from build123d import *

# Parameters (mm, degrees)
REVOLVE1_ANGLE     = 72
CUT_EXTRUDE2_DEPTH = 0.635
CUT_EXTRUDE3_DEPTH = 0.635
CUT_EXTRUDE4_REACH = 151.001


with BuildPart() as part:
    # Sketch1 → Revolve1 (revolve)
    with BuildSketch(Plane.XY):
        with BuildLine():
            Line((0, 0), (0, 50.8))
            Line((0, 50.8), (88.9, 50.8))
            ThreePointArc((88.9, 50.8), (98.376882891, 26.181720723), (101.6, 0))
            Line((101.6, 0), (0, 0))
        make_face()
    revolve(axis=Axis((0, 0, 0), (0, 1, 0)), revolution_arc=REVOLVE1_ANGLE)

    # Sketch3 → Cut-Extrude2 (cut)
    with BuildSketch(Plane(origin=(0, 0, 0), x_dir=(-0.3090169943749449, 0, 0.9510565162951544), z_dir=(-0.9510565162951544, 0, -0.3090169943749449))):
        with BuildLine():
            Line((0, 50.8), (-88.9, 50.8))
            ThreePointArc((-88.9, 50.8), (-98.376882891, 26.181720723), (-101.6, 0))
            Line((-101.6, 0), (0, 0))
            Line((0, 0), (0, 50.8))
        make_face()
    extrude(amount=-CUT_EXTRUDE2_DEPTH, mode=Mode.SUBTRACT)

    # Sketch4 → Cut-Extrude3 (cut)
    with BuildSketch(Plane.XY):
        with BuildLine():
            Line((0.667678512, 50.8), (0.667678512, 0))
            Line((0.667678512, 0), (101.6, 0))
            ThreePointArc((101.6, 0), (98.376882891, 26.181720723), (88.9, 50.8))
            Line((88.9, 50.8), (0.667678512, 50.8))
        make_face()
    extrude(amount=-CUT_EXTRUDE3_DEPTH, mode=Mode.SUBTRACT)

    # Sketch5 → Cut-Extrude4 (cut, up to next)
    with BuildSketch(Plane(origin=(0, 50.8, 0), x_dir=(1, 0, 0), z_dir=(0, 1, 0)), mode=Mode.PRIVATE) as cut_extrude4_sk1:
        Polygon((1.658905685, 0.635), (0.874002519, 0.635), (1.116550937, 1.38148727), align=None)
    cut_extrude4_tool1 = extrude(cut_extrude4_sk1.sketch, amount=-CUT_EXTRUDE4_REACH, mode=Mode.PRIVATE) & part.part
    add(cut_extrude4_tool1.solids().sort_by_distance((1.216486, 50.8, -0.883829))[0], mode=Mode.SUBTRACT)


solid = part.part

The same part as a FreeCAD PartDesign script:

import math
import FreeCAD as App
import Part
import Sketcher
Q = App.Units.Quantity


def add_polygon(sketch, points):
    """Adds a closed chain of lines whose ends are joined by coincident constraints."""
    first, n = sketch.GeometryCount, len(points)
    for a, b in zip(points, points[1:] + points[:1]):
        sketch.addGeometry(Part.LineSegment(App.Vector(*a, 0), App.Vector(*b, 0)), False)
    for i in range(n):
        sketch.addConstraint(Sketcher.Constraint("Coincident", first + i, 2, first + (i + 1) % n, 1))

doc = App.newDocument("Part")
body = doc.addObject("PartDesign::Body", "Body")

# Sketch on XY plane
sketch1 = body.newObject("Sketcher::SketchObject", "Sketch")
sketch1.AttachmentSupport = (doc.getObject("XY_Plane"), [""])
sketch1.MapMode = "FlatFace"
sketch1.addGeometry(Part.LineSegment(App.Vector(0, 51, 0), App.Vector(0, 0, 0)), False)
sketch1.addGeometry(Part.LineSegment(App.Vector(0, 0, 0), App.Vector(102, 0, 0)), False)
sketch1.addGeometry(Part.ArcOfCircle(Part.Circle(App.Vector(-6, 0, 0), App.Vector(0, 0, 1), 108), math.radians(0), math.radians(28)), False)
sketch1.addGeometry(Part.LineSegment(App.Vector(89, 51, 0), App.Vector(0, 51, 0)), False)
sketch1.addConstraint(Sketcher.Constraint("Coincident", 0, 2, 1, 1))
sketch1.addConstraint(Sketcher.Constraint("Coincident", 1, 2, 2, 1))
sketch1.addConstraint(Sketcher.Constraint("Coincident", 2, 2, 3, 1))
sketch1.addConstraint(Sketcher.Constraint("Coincident", 3, 2, 0, 1))
sketch1.addConstraint(Sketcher.Constraint("Vertical", 0))
sketch1.addConstraint(Sketcher.Constraint("Horizontal", 1))
sketch1.addConstraint(Sketcher.Constraint("Horizontal", 3))
sketch1.addConstraint(Sketcher.Constraint("Coincident", 0, 2, -1, 1))
sketch1.addConstraint(Sketcher.Constraint("PointOnObject", 2, 3, -1))
sketch1.addConstraint(Sketcher.Constraint("DistanceX", 1, 1, 1, 2, Q("4 in")))
sketch1.addConstraint(Sketcher.Constraint("DistanceY", 0, 2, 0, 1, Q("2 in")))
sketch1.addConstraint(Sketcher.Constraint("Radius", 2, Q("4.25 in")))
revolution = body.newObject("PartDesign::Revolution", "Revolution")
revolution.Profile = sketch1
revolution.ReferenceAxis = (sketch1, ["V_Axis"])
revolution.Angle = 72

# Sketch on an angled plane
sketch2 = body.newObject("Sketcher::SketchObject", "Sketch001")
sketch2.Placement = App.Placement(App.Vector(0, 0, 0), App.Rotation(App.Vector(-0.309016994, 0, 0.951056516), App.Vector(0, 0.999999999, 0), App.Vector(-0.951056516, 0, -0.309016994), "ZXY"))
sketch2.addGeometry(Part.LineSegment(App.Vector(0, 51, 0), App.Vector(-89, 51, 0)), False)
sketch2.addGeometry(Part.ArcOfCircle(Part.Circle(App.Vector(6, 0, 0), App.Vector(0, 0, 1), 108), math.radians(152), math.radians(180)), False)
sketch2.addGeometry(Part.LineSegment(App.Vector(-102, 0, 0), App.Vector(0, 0, 0)), False)
sketch2.addGeometry(Part.LineSegment(App.Vector(0, 0, 0), App.Vector(0, 51, 0)), False)
sketch2.addConstraint(Sketcher.Constraint("Coincident", 0, 2, 1, 1))
sketch2.addConstraint(Sketcher.Constraint("Coincident", 1, 2, 2, 1))
sketch2.addConstraint(Sketcher.Constraint("Coincident", 2, 2, 3, 1))
sketch2.addConstraint(Sketcher.Constraint("Coincident", 3, 2, 0, 1))
sketch2.addConstraint(Sketcher.Constraint("Horizontal", 0))
sketch2.addConstraint(Sketcher.Constraint("Horizontal", 2))
sketch2.addConstraint(Sketcher.Constraint("Vertical", 3))
sketch2.addConstraint(Sketcher.Constraint("Coincident", 2, 2, -1, 1))
sketch2.addConstraint(Sketcher.Constraint("PointOnObject", 1, 3, -1))
sketch2.addConstraint(Sketcher.Constraint("DistanceX", 2, 1, 2, 2, Q("4 in")))
sketch2.addConstraint(Sketcher.Constraint("DistanceY", 3, 1, 3, 2, Q("2 in")))
sketch2.addConstraint(Sketcher.Constraint("Radius", 1, Q("4.25 in")))
pocket1 = body.newObject("PartDesign::Pocket", "Pocket")
pocket1.Profile = sketch2
pocket1.Length = Q("0.025 in")

# Sketch on XY plane
sketch3 = body.newObject("Sketcher::SketchObject", "Sketch002")
sketch3.AttachmentSupport = (doc.getObject("XY_Plane"), [""])
sketch3.MapMode = "FlatFace"
sketch3.addGeometry(Part.LineSegment(App.Vector(1, 51, 0), App.Vector(1, 0, 0)), False)
sketch3.addGeometry(Part.LineSegment(App.Vector(1, 0, 0), App.Vector(102, 0, 0)), False)
sketch3.addGeometry(Part.ArcOfCircle(Part.Circle(App.Vector(-6, 0, 0), App.Vector(0, 0, 1), 108), math.radians(0), math.radians(28)), False)
sketch3.addGeometry(Part.LineSegment(App.Vector(89, 51, 0), App.Vector(1, 51, 0)), False)
sketch3.addConstraint(Sketcher.Constraint("Coincident", 0, 2, 1, 1))
sketch3.addConstraint(Sketcher.Constraint("Coincident", 1, 2, 2, 1))
sketch3.addConstraint(Sketcher.Constraint("Coincident", 2, 2, 3, 1))
sketch3.addConstraint(Sketcher.Constraint("Coincident", 3, 2, 0, 1))
sketch3.addConstraint(Sketcher.Constraint("Vertical", 0))
sketch3.addConstraint(Sketcher.Constraint("Horizontal", 1))
sketch3.addConstraint(Sketcher.Constraint("Horizontal", 3))
sketch3.addConstraint(Sketcher.Constraint("PointOnObject", 2, 3, -1))
sketch3.addConstraint(Sketcher.Constraint("PointOnObject", 0, 2, -1))
sketch3.addConstraint(Sketcher.Constraint("DistanceY", 0, 2, 0, 1, Q("2 in")))
sketch3.addConstraint(Sketcher.Constraint("Radius", 2, Q("4.25 in")))
sketch3.addConstraint(Sketcher.Constraint("DistanceX", -1, 1, 1, 2, Q("4 in")))
sketch3.addConstraint(Sketcher.Constraint("DistanceX", 1, 1, 1, 2, Q("100.932321 mm")))
pocket2 = body.newObject("PartDesign::Pocket", "Pocket001")
pocket2.Profile = sketch3
pocket2.Length = Q("0.025 in")

# Sketch on XZ plane
sketch4 = body.newObject("Sketcher::SketchObject", "Sketch003")
sketch4.AttachmentSupport = (doc.getObject("XZ_Plane"), [""])
sketch4.MapMode = "FlatFace"
sketch4.AttachmentOffset = App.Placement(App.Vector(0, 0, -2 * 25.4), App.Rotation())
add_polygon(sketch4, [(0.9, -0.6), (1.7, -0.6), (1.1, -1.4)])  # lines 0-2
sketch4.addConstraint(Sketcher.Constraint("Horizontal", 0))
sketch4.addConstraint(Sketcher.Constraint("Angle", 1, Q("-126 deg")))
sketch4.addConstraint(Sketcher.Constraint("Angle", 2, Q("108 deg")))
sketch4.addConstraint(Sketcher.Constraint("DistanceY", 0, 2, -1, 1, Q("0.025 in")))
sketch4.addConstraint(Sketcher.Constraint("Distance", 1, Q("0.922709 mm")))
sketch4.addConstraint(Sketcher.Constraint("DistanceX", -1, 1, 1, 2, Q("1.116551 mm")))
pocket3 = body.newObject("PartDesign::Pocket", "Pocket002")
pocket3.Profile = sketch4
pocket3.Type = "UpToFirst"
pocket3.Reversed = True

doc.recompute()
